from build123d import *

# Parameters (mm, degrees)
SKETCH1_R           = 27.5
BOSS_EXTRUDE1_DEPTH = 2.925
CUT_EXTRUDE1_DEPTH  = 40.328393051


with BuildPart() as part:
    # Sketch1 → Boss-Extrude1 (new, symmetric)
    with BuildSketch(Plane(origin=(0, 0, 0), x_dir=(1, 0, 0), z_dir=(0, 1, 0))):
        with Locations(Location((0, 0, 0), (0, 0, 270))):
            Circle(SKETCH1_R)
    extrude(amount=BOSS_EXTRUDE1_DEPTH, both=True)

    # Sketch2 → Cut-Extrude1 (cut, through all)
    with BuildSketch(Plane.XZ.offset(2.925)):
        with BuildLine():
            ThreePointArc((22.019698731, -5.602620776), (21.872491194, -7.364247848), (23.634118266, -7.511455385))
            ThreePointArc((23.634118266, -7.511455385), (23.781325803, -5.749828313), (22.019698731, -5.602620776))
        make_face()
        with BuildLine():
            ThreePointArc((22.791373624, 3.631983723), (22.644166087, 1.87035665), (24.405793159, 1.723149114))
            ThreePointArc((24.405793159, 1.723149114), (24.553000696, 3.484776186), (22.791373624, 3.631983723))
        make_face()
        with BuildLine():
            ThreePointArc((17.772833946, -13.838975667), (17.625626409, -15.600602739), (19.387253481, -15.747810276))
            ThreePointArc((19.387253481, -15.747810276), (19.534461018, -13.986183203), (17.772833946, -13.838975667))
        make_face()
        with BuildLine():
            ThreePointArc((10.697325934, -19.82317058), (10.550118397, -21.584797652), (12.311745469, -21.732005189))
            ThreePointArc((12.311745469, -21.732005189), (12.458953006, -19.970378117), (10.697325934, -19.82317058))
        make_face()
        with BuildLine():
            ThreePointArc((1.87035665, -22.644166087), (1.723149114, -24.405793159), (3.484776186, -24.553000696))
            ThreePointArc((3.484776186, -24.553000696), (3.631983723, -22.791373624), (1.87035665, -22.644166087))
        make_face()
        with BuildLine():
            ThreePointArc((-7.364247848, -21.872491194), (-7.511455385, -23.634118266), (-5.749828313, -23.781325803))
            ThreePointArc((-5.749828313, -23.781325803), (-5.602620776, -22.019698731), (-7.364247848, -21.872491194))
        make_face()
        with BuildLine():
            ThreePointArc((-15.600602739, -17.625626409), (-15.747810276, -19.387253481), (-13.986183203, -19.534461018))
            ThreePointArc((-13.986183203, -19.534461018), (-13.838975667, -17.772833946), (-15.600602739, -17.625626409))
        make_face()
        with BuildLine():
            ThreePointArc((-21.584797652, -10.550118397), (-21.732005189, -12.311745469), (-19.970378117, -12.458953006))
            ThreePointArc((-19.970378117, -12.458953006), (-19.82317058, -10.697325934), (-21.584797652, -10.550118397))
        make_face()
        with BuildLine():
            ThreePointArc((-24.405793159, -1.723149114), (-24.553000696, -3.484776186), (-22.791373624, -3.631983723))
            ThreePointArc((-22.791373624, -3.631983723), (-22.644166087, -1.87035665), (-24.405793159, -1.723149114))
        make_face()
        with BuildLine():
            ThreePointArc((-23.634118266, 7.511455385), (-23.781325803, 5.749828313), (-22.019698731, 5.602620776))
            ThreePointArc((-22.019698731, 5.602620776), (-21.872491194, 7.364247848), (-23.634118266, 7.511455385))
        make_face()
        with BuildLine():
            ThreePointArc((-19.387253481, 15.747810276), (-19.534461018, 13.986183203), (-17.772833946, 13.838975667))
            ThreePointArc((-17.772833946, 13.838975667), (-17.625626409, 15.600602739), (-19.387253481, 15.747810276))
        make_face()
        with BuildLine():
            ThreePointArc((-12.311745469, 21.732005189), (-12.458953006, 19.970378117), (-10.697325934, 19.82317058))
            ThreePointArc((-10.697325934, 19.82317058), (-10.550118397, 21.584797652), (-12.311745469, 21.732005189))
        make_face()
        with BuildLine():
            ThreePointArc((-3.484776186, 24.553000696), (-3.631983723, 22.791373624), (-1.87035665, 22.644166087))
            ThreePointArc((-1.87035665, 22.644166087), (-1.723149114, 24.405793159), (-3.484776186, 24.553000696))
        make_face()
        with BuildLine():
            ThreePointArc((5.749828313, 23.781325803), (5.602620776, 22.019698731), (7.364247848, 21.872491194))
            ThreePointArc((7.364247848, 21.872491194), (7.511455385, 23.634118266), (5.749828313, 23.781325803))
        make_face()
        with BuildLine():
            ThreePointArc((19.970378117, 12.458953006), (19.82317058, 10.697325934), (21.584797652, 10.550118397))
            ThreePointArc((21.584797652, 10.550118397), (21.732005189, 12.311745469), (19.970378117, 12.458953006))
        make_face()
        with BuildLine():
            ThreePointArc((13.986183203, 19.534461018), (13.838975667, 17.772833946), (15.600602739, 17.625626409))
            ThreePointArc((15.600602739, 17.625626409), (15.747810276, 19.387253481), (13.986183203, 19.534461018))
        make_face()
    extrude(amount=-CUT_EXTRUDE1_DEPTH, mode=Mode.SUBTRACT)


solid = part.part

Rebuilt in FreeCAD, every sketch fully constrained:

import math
import FreeCAD as App
import Part
import Sketcher

doc = App.newDocument("Part")
params = doc.addObject("Spreadsheet::Sheet", "Params")
for row, (alias, value) in enumerate([
    ("sketch1_diameter", "55 mm"),
    ("pad1_length", "5.85 mm"),
    ("sketch2_diameter", "2.5 mm"),
], start=1):
    params.set(f"A{row}", alias)
    params.set(f"B{row}", "=" + value)
    params.setAlias(f"B{row}", alias)

body = doc.addObject("PartDesign::Body", "Body")

sketch1 = body.newObject("Sketcher::SketchObject", "Sketch")
sketch1.AttachmentSupport = (doc.getObject("XZ_Plane"), [""])
sketch1.MapMode = "FlatFace"
sketch1.addGeometry(Part.Circle(App.Vector(0, 0, 0), App.Vector(0, 0, 1), 27.5), False)
sketch1.addConstraint([
    Sketcher.Constraint("Coincident", 0, 3, -1, 1),
    Sketcher.Constraint("Diameter", 0, 55.0),
])
sketch1.setExpression("Constraints[1]", "Params.sketch1_diameter")
pad1 = body.newObject("PartDesign::Pad", "Pad")
pad1.Profile = sketch1
pad1.setExpression("Length", "Params.pad1_length")
pad1.Midplane = True

sketch2 = body.newObject("Sketcher::SketchObject", "Sketch001")
sketch2.AttachmentSupport = (doc.getObject("XZ_Plane"), [""])
sketch2.MapMode = "FlatFace"
sketch2.AttachmentOffset = App.Placement(App.Vector(0, 0, 2.925), App.Rotation())
sketch2.addGeometry([
    Part.Circle(App.Vector(22.826908, -6.557038, 0), App.Vector(0, 0, 1), 1.25),
    Part.ArcOfCircle(Part.Circle(App.Vector(23.598583, 2.677566, 0), App.Vector(0, 0, 1), 1.25), math.radians(130.223268), math.radians(310.223268)),
    Part.ArcOfCircle(Part.Circle(App.Vector(23.598583, 2.677566, 0), App.Vector(0, 0, 1), 1.25), math.radians(-49.776732), math.radians(130.223268)),
    Part.ArcOfCircle(Part.Circle(App.Vector(18.580044, -14.793393, 0), App.Vector(0, 0, 1), 1.25), math.radians(130.223268), math.radians(310.223268)),
    Part.ArcOfCircle(Part.Circle(App.Vector(18.580044, -14.793393, 0), App.Vector(0, 0, 1), 1.25), math.radians(-49.776732), math.radians(130.223268)),
    Part.Circle(App.Vector(11.504536, -20.777588, 0), App.Vector(0, 0, 1), 1.25),
    Part.ArcOfCircle(Part.Circle(App.Vector(2.677566, -23.598583, 0), App.Vector(0, 0, 1), 1.25), math.radians(130.223268), math.radians(310.223268)),
    Part.ArcOfCircle(Part.Circle(App.Vector(2.677566, -23.598583, 0), App.Vector(0, 0, 1), 1.25), math.radians(-49.776732), math.radians(130.223268)),
    Part.Circle(App.Vector(-6.557038, -22.826908, 0), App.Vector(0, 0, 1), 1.25),
    Part.ArcOfCircle(Part.Circle(App.Vector(-14.793393, -18.580044, 0), App.Vector(0, 0, 1), 1.25), math.radians(130.223268), math.radians(310.223268)),
    Part.ArcOfCircle(Part.Circle(App.Vector(-14.793393, -18.580044, 0), App.Vector(0, 0, 1), 1.25), math.radians(-49.776732), math.radians(130.223268)),
    Part.Circle(App.Vector(-20.777588, -11.504536, 0), App.Vector(0, 0, 1), 1.25),
    Part.ArcOfCircle(Part.Circle(App.Vector(-23.598583, -2.677566, 0), App.Vector(0, 0, 1), 1.25), math.radians(130.223268), math.radians(310.223268)),
    Part.ArcOfCircle(Part.Circle(App.Vector(-23.598583, -2.677566, 0), App.Vector(0, 0, 1), 1.25), math.radians(-49.776732), math.radians(130.223268)),
    Part.Circle(App.Vector(-22.826908, 6.557038, 0), App.Vector(0, 0, 1), 1.25),
    Part.ArcOfCircle(Part.Circle(App.Vector(-18.580044, 14.793393, 0), App.Vector(0, 0, 1), 1.25), math.radians(130.223268), math.radians(310.223268)),
    Part.ArcOfCircle(Part.Circle(App.Vector(-18.580044, 14.793393, 0), App.Vector(0, 0, 1), 1.25), math.radians(-49.776732), math.radians(130.223268)),
    Part.Circle(App.Vector(-11.504536, 20.777588, 0), App.Vector(0, 0, 1), 1.25),
    Part.ArcOfCircle(Part.Circle(App.Vector(-2.677566, 23.598583, 0), App.Vector(0, 0, 1), 1.25), math.radians(130.223268), math.radians(310.223268)),
    Part.ArcOfCircle(Part.Circle(App.Vector(-2.677566, 23.598583, 0), App.Vector(0, 0, 1), 1.25), math.radians(-49.776732), math.radians(130.223268)),
    Part.Circle(App.Vector(6.557038, 22.826908, 0), App.Vector(0, 0, 1), 1.25),
    Part.Circle(App.Vector(20.777588, 11.504536, 0), App.Vector(0, 0, 1), 1.25),
    Part.ArcOfCircle(Part.Circle(App.Vector(14.793393, 18.580044, 0), App.Vector(0, 0, 1), 1.25), math.radians(130.223268), math.radians(310.223268)),
    Part.ArcOfCircle(Part.Circle(App.Vector(14.793393, 18.580044, 0), App.Vector(0, 0, 1), 1.25), math.radians(-49.776732), math.radians(130.223268)),
], False)
sketch2.addConstraint([
    Sketcher.Constraint("Tangent", 1, 1, 2, 2),
    Sketcher.Constraint("Coincident", 2, 1, 1, 2),
    Sketcher.Constraint("Tangent", 3, 1, 4, 2),
    Sketcher.Constraint("Coincident", 4, 1, 3, 2),
    Sketcher.Constraint("Tangent", 6, 1, 7, 2),
    Sketcher.Constraint("Coincident", 7, 1, 6, 2),
    Sketcher.Constraint("Tangent", 9, 1, 10, 2),
    Sketcher.Constraint("Coincident", 10, 1, 9, 2),
    Sketcher.Constraint("Tangent", 12, 1, 13, 2),
    Sketcher.Constraint("Coincident", 13, 1, 12, 2),
    Sketcher.Constraint("Tangent", 15, 1, 16, 2),
    Sketcher.Constraint("Coincident", 16, 1, 15, 2),
    Sketcher.Constraint("Tangent", 18, 1, 19, 2),
    Sketcher.Constraint("Coincident", 19, 1, 18, 2),
    Sketcher.Constraint("Tangent", 22, 1, 23, 2),
    Sketcher.Constraint("Coincident", 23, 1, 22, 2),
    Sketcher.Constraint("Equal", 0, 1),
    Sketcher.Constraint("Equal", 2, 3),
    Sketcher.Constraint("Equal", 4, 5),
    Sketcher.Constraint("Equal", 5, 6),
    Sketcher.Constraint("Equal", 7, 8),
    Sketcher.Constraint("Equal", 8, 9),
    Sketcher.Constraint("Equal", 10, 11),
    Sketcher.Constraint("Equal", 11, 12),
    Sketcher.Constraint("Equal", 13, 14),
    Sketcher.Constraint("Equal", 14, 15),
    Sketcher.Constraint("Equal", 16, 17),
    Sketcher.Constraint("Equal", 17, 18),
    Sketcher.Constraint("Equal", 19, 20),
    Sketcher.Constraint("Equal", 20, 21),
    Sketcher.Constraint("Equal", 21, 22),
    Sketcher.Constraint("Symmetric", 1, 3, 12, 3, -1, 1),
    Sketcher.Constraint("Symmetric", 0, 3, 14, 3, -1, 1),
    Sketcher.Constraint("Symmetric", 3, 3, 15, 3, -1, 1),
    Sketcher.Constraint("Symmetric", 5, 3, 17, 3, -1, 1),
    Sketcher.Constraint("Symmetric", 6, 3, 18, 3, -1, 1),
    Sketcher.Constraint("Symmetric", 8, 3, 20, 3, -1, 1),
    Sketcher.Constraint("Symmetric", 11, 3, 21, 3, -1, 1),
    Sketcher.Constraint("Symmetric", 9, 3, 22, 3, -1, 1),
    Sketcher.Constraint("Diameter", 0, 2.5),
    Sketcher.Constraint("DistanceY", 7, 1, -1, 1, 24.553001),
    Sketcher.Constraint("DistanceY", -1, 1, 18, 1, 24.553001),
    Sketcher.Constraint("DistanceX", 5, 3, 3, 1, 6.268298),
    Sketcher.Constraint("DistanceX", 16, 1, 17, 3, 6.268298),
    Sketcher.Constraint("DistanceX", -1, 1, 0, 3, 22.826908),
    Sketcher.Constraint("DistanceY", 0, 3, -1, 1, 6.557038),
    Sketcher.Constraint("DistanceX", 8, 3, -1, 1, 6.557038),
    Sketcher.Constraint("DistanceY", 8, 3, -1, 1, 22.826908),
    Sketcher.Constraint("DistanceY", -1, 1, 2, 1, 1.723149),
    Sketcher.Constraint("DistanceY", 4, 1, -1, 1, 15.74781),
    Sketcher.Constraint("DistanceY", 10, 1, -1, 1, 19.534461),
    Sketcher.Constraint("DistanceY", 12, 1, -1, 1, 1.723149),
    Sketcher.Constraint("DistanceY", -1, 1, 15, 1, 15.74781),
    Sketcher.Constraint("DistanceY", -1, 1, 22, 1, 19.534461),
    Sketcher.Constraint("DistanceX", 3, 3, 1, 3, 5.01854),
    Sketcher.Constraint("DistanceY", 3, 3, 1, 3, 17.470959),
    Sketcher.Constraint("DistanceX", 5, 3, 3, 3, 7.075508),
    Sketcher.Constraint("DistanceY", 5, 3, 0, 3, 14.22055),
    Sketcher.Constraint("DistanceX", 6, 3, 5, 3, 8.826969),
    Sketcher.Constraint("DistanceY", 6, 3, 3, 3, 8.80519),
    Sketcher.Constraint("DistanceX", 8, 3, 3, 3, 25.137082),
    Sketcher.Constraint("DistanceX", 9, 3, 7, 3, 17.470959),
    Sketcher.Constraint("DistanceY", 7, 3, 9, 3, 5.01854),
    Sketcher.Constraint("DistanceY", 10, 3, 11, 3, 7.075508),
    Sketcher.Constraint("DistanceX", 11, 3, 8, 3, 14.22055),
    Sketcher.Constraint("DistanceY", 11, 3, 12, 3, 8.826969),
    Sketcher.Constraint("DistanceX", 1, 1, 1, 3, 0.80721),
    Sketcher.Constraint("DistanceX", 6, 1, 7, 3, 0.80721),
    Sketcher.Constraint("DistanceX", 9, 1, 10, 3, 0.80721),
    Sketcher.Constraint("DistanceX", 13, 3, 13, 1, 0.80721),
    Sketcher.Constraint("DistanceX", 18, 3, 19, 1, 0.80721),
    Sketcher.Constraint("DistanceX", 22, 3, 23, 1, 0.80721),
])
sketch2.setExpression("Constraints[39]", "Params.sketch2_diameter")
pocket1 = body.newObject("PartDesign::Pocket", "Pocket")
pocket1.Profile = sketch2
pocket1.Type = "ThroughAll"

doc.recompute()
